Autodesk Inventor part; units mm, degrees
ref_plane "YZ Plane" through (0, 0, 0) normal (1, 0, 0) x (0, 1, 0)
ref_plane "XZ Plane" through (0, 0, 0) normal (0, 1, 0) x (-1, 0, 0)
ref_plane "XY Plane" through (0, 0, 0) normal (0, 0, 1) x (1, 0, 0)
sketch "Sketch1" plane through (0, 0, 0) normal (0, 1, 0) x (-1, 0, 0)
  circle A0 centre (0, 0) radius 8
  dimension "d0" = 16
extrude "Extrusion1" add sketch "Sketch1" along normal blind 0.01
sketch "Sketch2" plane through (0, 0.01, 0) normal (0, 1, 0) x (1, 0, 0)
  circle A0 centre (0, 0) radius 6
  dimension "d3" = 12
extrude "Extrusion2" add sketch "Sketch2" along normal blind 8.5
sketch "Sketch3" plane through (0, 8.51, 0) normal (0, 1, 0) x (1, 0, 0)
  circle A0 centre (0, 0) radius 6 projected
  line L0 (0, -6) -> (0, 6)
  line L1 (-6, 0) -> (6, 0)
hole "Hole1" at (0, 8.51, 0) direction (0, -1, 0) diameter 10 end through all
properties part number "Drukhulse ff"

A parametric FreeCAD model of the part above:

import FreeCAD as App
import Part
import Sketcher
Q = App.Units.Quantity

doc = App.newDocument("Part")
body = doc.addObject("PartDesign::Body", "Body")

# Sketch on XZ plane
sketch1 = body.newObject("Sketcher::SketchObject", "Sketch")
sketch1.AttachmentSupport = (doc.getObject("XZ_Plane"), [""])
sketch1.MapMode = "FlatFace"
sketch1.addGeometry(Part.Circle(App.Vector(0, 0, 0), App.Vector(0, 0, 1), 8), False)
sketch1.addConstraint([
    Sketcher.Constraint("Coincident", 0, 3, -1, 1),
    Sketcher.Constraint("Diameter", 0, Q("16 mm")),
])
pad1 = body.newObject("PartDesign::Pad", "Pad")
pad1.Profile = sketch1
pad1.Length = 0.01
pad1.Reversed = True

# Sketch on XZ plane
sketch2 = body.newObject("Sketcher::SketchObject", "Sketch001")
sketch2.AttachmentSupport = (doc.getObject("XZ_Plane"), [""])
sketch2.MapMode = "FlatFace"
sketch2.AttachmentOffset = App.Placement(App.Vector(0, 0, -0.01), App.Rotation())
sketch2.addGeometry(Part.Circle(App.Vector(0, 0, 0), App.Vector(0, 0, 1), 6), False)
sketch2.addConstraint([
    Sketcher.Constraint("Coincident", 0, 3, -1, 1),
    Sketcher.Constraint("Diameter", 0, Q("12 mm")),
])
pad2 = body.newObject("PartDesign::Pad", "Pad001")
pad2.Profile = sketch2
pad2.Length = 8.5
pad2.Reversed = True

# Sketch on XZ plane
sketch3 = body.newObject("Sketcher::SketchObject", "Sketch002")
sketch3.AttachmentSupport = (doc.getObject("XZ_Plane"), [""])
sketch3.MapMode = "FlatFace"
sketch3.AttachmentOffset = App.Placement(App.Vector(0, 0, -8.51), App.Rotation())
sketch3.addGeometry(Part.Circle(App.Vector(0, 0, 0), App.Vector(0, 0, 1), 5), False)
sketch3.addConstraint([
    Sketcher.Constraint("Coincident", 0, 3, -1, 1),
    Sketcher.Constraint("Diameter", 0, Q("10 mm")),
])
doc.recompute()
hole = body.newObject("PartDesign::Hole", "Hole")
hole.Profile = sketch3
hole.ThreadType = "None"
hole.Diameter = 10
hole.DepthType = "ThroughAll"
hole.Reversed = True

doc.recompute()
